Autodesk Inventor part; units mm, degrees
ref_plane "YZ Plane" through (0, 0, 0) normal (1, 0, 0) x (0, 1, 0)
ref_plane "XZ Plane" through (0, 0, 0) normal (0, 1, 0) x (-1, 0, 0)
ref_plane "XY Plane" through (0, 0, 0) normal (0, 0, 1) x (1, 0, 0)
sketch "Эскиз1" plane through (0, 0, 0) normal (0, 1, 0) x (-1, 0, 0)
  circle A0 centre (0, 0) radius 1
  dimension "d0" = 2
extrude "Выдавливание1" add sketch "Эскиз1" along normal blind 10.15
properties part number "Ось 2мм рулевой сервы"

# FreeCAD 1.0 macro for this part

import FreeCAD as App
import Part
import Sketcher
from FreeCAD import Vector
Q = App.Units.Quantity

doc = App.newDocument("Part")
params = doc.addObject("Spreadsheet::Sheet", "Params")
for row, (alias, value) in enumerate([
    ("sketch1_diameter", "2 mm"),
    ("pad1_length", "10.15 mm"),
], start=1):
    params.set(f"A{row}", alias)
    params.set(f"B{row}", "=" + value)
    params.setAlias(f"B{row}", alias)

body = doc.addObject("PartDesign::Body", "Body")

# Sketch on XZ plane
sketch1 = doc.addObject("Sketcher::SketchObject", "Sketch")
body.addObject(sketch1)
sketch1.AttachmentSupport = (doc.XZ_Plane, [""])
sketch1.MapMode = "FlatFace"
sketch1.addGeometry(Part.Circle(Vector(0, 0, 0), Vector(0, 0, 1), 1), False)
sketch1.addConstraint([
    Sketcher.Constraint("Coincident", 0, 3, -1, 1),
    Sketcher.Constraint("Diameter", 0, Q("2 mm")),
])
sketch1.setExpression("Constraints[1]", "Params.sketch1_diameter")
pad1 = doc.addObject("PartDesign::Pad", "Pad")
body.addObject(pad1)
pad1.Profile = sketch1
pad1.setExpression("Length", "Params.pad1_length")
pad1.Reversed = True

doc.recompute()
